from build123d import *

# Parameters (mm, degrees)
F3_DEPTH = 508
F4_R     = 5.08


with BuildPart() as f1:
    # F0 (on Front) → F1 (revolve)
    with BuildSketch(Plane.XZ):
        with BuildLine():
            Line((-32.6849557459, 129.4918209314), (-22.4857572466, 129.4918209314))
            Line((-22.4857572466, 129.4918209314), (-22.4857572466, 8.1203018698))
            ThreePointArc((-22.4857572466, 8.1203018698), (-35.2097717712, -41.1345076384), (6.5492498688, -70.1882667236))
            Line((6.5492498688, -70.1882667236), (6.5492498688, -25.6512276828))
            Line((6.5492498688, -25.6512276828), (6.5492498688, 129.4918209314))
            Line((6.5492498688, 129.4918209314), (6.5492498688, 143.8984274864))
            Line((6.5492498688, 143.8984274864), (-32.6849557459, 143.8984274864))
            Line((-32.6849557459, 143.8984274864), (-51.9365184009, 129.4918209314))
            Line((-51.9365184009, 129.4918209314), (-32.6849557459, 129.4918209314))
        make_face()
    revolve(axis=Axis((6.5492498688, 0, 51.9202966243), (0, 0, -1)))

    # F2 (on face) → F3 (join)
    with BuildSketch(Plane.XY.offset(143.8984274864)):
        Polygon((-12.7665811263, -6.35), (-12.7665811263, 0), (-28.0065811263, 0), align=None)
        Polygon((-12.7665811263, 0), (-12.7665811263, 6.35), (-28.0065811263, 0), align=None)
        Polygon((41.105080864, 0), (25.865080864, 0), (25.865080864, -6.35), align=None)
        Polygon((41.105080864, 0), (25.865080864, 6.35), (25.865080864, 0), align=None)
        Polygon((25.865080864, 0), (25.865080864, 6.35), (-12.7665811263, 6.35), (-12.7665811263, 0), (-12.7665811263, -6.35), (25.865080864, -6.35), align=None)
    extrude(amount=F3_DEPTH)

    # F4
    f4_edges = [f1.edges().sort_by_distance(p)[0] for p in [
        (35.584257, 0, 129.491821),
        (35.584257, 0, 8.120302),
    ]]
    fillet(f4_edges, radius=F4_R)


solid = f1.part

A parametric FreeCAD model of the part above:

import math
import FreeCAD as App
import Part
import Sketcher
from FreeCAD import Vector
Q = App.Units.Quantity


def edges_at(feature, points):
    """Names of the edges that pass closest to the given points."""
    edges = feature.Shape.Edges
    near = lambda p: min(range(len(edges)), key=lambda i: edges[i].distToShape(Part.Vertex(*p))[0])
    return sorted({f"Edge{near(p) + 1}" for p in points})

doc = App.newDocument("Part")
body = doc.addObject("PartDesign::Body", "Body")

# Sketch on XZ plane
sketch1 = body.newObject("Sketcher::SketchObject", "Sketch")
sketch1.AttachmentSupport = (doc.getObject("XZ_Plane"), [""])
sketch1.MapMode = "FlatFace"
sketch1.addGeometry([
    Part.LineSegment(Vector(-22, 129, 0), Vector(-22, 8, 0)),  # 0
    Part.ArcOfCircle(Part.Circle(Vector(7, -26, 0), Vector(0, 0, 1), 45), math.radians(131), math.radians(270)),  # 1
    Part.LineSegment(Vector(7, -70, 0), Vector(7, 144, 0)),  # 2
    Part.LineSegment(Vector(7, 144, 0), Vector(-33, 144, 0)),  # 3
    Part.LineSegment(Vector(-33, 144, 0), Vector(-52, 129, 0)),  # 4
    Part.LineSegment(Vector(-52, 129, 0), Vector(-22, 129, 0)),  # 5
], False)
sketch1.addGeometry(Part.LineSegment(Vector(7, 144, 0), Vector(7, -70, 0)), True)  # axis
sketch1.addConstraint([
    Sketcher.Constraint("Coincident", 0, 2, 1, 1),
    Sketcher.Constraint("Coincident", 1, 2, 2, 1),
    Sketcher.Constraint("Coincident", 2, 2, 3, 1),
    Sketcher.Constraint("Coincident", 3, 2, 4, 1),
    Sketcher.Constraint("Coincident", 4, 2, 5, 1),
    Sketcher.Constraint("Coincident", 5, 2, 0, 1),
    Sketcher.Constraint("Vertical", 0),
    Sketcher.Constraint("Vertical", 2),
    Sketcher.Constraint("Horizontal", 3),
    Sketcher.Constraint("Horizontal", 5),
    Sketcher.Constraint("Vertical", 6),
    Sketcher.Constraint("Coincident", 6, 1, 2, 2),
    Sketcher.Constraint("Equal", 2, 6),
    Sketcher.Constraint("Radius", 1, Q("44.537039 mm")),
    Sketcher.Constraint("DistanceX", 5, 1, 5, 2, Q("29.450761 mm")),
    Sketcher.Constraint("DistanceY", 0, 2, 0, 1, Q("121.371519 mm")),
    Sketcher.Constraint("DistanceY", -1, 1, 0, 2, Q("8.120302 mm")),
    Sketcher.Constraint("DistanceX", 3, 2, 0, 2, Q("10.199198 mm")),
    Sketcher.Constraint("DistanceX", 3, 2, 3, 1, Q("39.234206 mm")),
    Sketcher.Constraint("DistanceY", 2, 1, 2, 2, Q("214.086694 mm")),
    Sketcher.Constraint("DistanceX", -1, 1, 1, 3, Q("6.54925 mm")),
    Sketcher.Constraint("DistanceX", -1, 1, 1, 2, Q("6.54925 mm")),
])
revolution = body.newObject("PartDesign::Revolution", "Revolution")
revolution.Profile = sketch1
revolution.ReferenceAxis = (sketch1, ["Axis0"])
revolution.Angle = 360

# Sketch on XY plane
sketch2 = body.newObject("Sketcher::SketchObject", "Sketch001")
sketch2.AttachmentSupport = (doc.getObject("XY_Plane"), [""])
sketch2.MapMode = "FlatFace"
sketch2.AttachmentOffset = App.Placement(Vector(0, 0, 143.898427), App.Rotation())
sketch2.addGeometry([
    Part.LineSegment(Vector(-13, 6, 0), Vector(-28, 0, 0)),  # 0
    Part.LineSegment(Vector(-28, 0, 0), Vector(-13, -6, 0)),  # 1
    Part.LineSegment(Vector(-13, -6, 0), Vector(26, -6, 0)),  # 2
    Part.LineSegment(Vector(26, -6, 0), Vector(41, 0, 0)),  # 3
    Part.LineSegment(Vector(41, 0, 0), Vector(26, 6, 0)),  # 4
    Part.LineSegment(Vector(26, 6, 0), Vector(-13, 6, 0)),  # 5
], False)
sketch2.addConstraint([
    Sketcher.Constraint("Coincident", 0, 2, 1, 1),
    Sketcher.Constraint("Coincident", 1, 2, 2, 1),
    Sketcher.Constraint("Coincident", 2, 2, 3, 1),
    Sketcher.Constraint("Coincident", 3, 2, 4, 1),
    Sketcher.Constraint("Coincident", 4, 2, 5, 1),
    Sketcher.Constraint("Coincident", 5, 2, 0, 1),
    Sketcher.Constraint("Horizontal", 2),
    Sketcher.Constraint("Horizontal", 5),
    Sketcher.Constraint("Symmetric", 2, 2, 4, 2, -1),
    Sketcher.Constraint("PointOnObject", 0, 2, -1),
    Sketcher.Constraint("PointOnObject", 3, 2, -1),
    Sketcher.Constraint("Parallel", 0, 3),
    Sketcher.Constraint("Parallel", 1, 4),
    Sketcher.Constraint("DistanceX", 0, 2, 1, 2, Q("0.6 in")),
    Sketcher.Constraint("DistanceY", 2, 2, 4, 2, Q("0.5 in")),
    Sketcher.Constraint("DistanceX", 2, 1, 2, 2, Q("38.631662 mm")),
    Sketcher.Constraint("DistanceX", 0, 2, -1, 1, Q("28.006581 mm")),
])
pad1 = body.newObject("PartDesign::Pad", "Pad")
pad1.Profile = sketch2
pad1.Length = Q("20 in")
doc.recompute()

fillet = body.newObject("PartDesign::Fillet", "Fillet")
fillet.Base = (pad1, edges_at(pad1, [(35.584, 0, 129.492), (35.584, 0, 8.12)]))
fillet.Radius = Q("0.2 in")

doc.recompute()
